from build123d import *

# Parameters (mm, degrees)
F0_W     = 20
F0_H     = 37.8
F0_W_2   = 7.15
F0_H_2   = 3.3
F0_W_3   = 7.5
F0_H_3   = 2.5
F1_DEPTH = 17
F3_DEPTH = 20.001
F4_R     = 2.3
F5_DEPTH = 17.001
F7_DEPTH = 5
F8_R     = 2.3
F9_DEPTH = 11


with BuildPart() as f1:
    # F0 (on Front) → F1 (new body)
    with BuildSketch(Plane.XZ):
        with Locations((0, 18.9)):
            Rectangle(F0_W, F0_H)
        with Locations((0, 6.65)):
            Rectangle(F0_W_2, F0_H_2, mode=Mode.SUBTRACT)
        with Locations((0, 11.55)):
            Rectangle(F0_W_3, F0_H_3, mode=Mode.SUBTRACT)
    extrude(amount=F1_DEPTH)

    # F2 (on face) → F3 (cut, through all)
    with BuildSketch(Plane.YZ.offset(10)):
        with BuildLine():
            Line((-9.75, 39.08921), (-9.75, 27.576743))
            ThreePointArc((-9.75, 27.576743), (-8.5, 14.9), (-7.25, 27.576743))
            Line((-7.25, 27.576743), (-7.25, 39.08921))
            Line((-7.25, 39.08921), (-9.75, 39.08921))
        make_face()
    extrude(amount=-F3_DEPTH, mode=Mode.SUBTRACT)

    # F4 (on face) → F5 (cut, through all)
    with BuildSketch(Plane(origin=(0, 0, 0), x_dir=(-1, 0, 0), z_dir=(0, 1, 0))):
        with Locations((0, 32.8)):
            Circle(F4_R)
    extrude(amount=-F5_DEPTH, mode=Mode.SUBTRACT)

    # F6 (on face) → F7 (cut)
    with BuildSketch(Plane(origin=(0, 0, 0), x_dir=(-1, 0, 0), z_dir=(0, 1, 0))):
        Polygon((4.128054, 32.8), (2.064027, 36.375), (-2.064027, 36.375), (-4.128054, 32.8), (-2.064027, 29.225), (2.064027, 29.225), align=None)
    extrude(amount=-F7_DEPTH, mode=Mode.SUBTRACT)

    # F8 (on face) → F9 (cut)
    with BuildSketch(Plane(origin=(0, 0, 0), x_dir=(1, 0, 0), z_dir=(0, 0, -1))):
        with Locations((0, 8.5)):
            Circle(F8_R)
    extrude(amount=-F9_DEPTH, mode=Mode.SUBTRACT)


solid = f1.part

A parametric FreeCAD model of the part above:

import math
import FreeCAD as App
import Part
import Sketcher

V = App.Vector
Q = App.Units.Quantity

doc = App.newDocument("Part")
body = doc.addObject("PartDesign::Body", "Body")

# Sketch on XZ plane
sketch1 = body.newObject("Sketcher::SketchObject", "Sketch")
sketch1.AttachmentSupport = (doc.getObject("XZ_Plane"), [""])
sketch1.MapMode = "FlatFace"
sketch1.addGeometry([
    Part.LineSegment(V(-10, 37.8, 0), V(-10, 0, 0)),  # 0
    Part.LineSegment(V(-10, 0, 0), V(10, 0, 0)),  # 1
    Part.LineSegment(V(10, 0, 0), V(10, 37.8, 0)),  # 2
    Part.LineSegment(V(10, 37.8, 0), V(-10, 37.8, 0)),  # 3
    Part.LineSegment(V(3.6, 5, 0), V(-3.6, 5, 0)),  # 4
    Part.LineSegment(V(-3.6, 5, 0), V(-3.6, 8.3, 0)),  # 5
    Part.LineSegment(V(-3.6, 8.3, 0), V(3.6, 8.3, 0)),  # 6
    Part.LineSegment(V(3.6, 8.3, 0), V(3.6, 5, 0)),  # 7
    Part.LineSegment(V(3.8, 10.3, 0), V(-3.8, 10.3, 0)),  # 8
    Part.LineSegment(V(-3.8, 10.3, 0), V(-3.8, 12.8, 0)),  # 9
    Part.LineSegment(V(-3.8, 12.8, 0), V(3.8, 12.8, 0)),  # 10
    Part.LineSegment(V(3.8, 12.8, 0), V(3.8, 10.3, 0)),  # 11
], False)
sketch1.addConstraint([
    Sketcher.Constraint("Coincident", 0, 2, 1, 1),
    Sketcher.Constraint("Coincident", 1, 2, 2, 1),
    Sketcher.Constraint("Coincident", 2, 2, 3, 1),
    Sketcher.Constraint("Coincident", 3, 2, 0, 1),
    Sketcher.Constraint("Coincident", 4, 2, 5, 1),
    Sketcher.Constraint("Coincident", 5, 2, 6, 1),
    Sketcher.Constraint("Coincident", 6, 2, 7, 1),
    Sketcher.Constraint("Coincident", 7, 2, 4, 1),
    Sketcher.Constraint("Coincident", 8, 2, 9, 1),
    Sketcher.Constraint("Coincident", 9, 2, 10, 1),
    Sketcher.Constraint("Coincident", 10, 2, 11, 1),
    Sketcher.Constraint("Coincident", 11, 2, 8, 1),
    Sketcher.Constraint("Vertical", 0),
    Sketcher.Constraint("Horizontal", 1),
    Sketcher.Constraint("Vertical", 2),
    Sketcher.Constraint("Horizontal", 3),
    Sketcher.Constraint("Horizontal", 4),
    Sketcher.Constraint("Vertical", 5),
    Sketcher.Constraint("Horizontal", 6),
    Sketcher.Constraint("Vertical", 7),
    Sketcher.Constraint("Horizontal", 8),
    Sketcher.Constraint("Vertical", 9),
    Sketcher.Constraint("Horizontal", 10),
    Sketcher.Constraint("Vertical", 11),
    Sketcher.Constraint("Symmetric", 0, 2, 1, 2, -1, 1),
    Sketcher.Constraint("DistanceX", 1, 1, 1, 2, 20.0),
    Sketcher.Constraint("DistanceX", 8, 2, 8, 1, 7.5),
    Sketcher.Constraint("DistanceY", 0, 2, 0, 1, 37.8),
    Sketcher.Constraint("DistanceY", 5, 1, 5, 2, 3.3),
    Sketcher.Constraint("DistanceY", 9, 1, 9, 2, 2.5),
    Sketcher.Constraint("DistanceY", -1, 1, 4, 2, 5.0),
    Sketcher.Constraint("DistanceY", 5, 2, 8, 2, 2.0),
    Sketcher.Constraint("DistanceX", 4, 2, 4, 1, 7.15),
    Sketcher.Constraint("DistanceX", 8, 2, -1, 1, 3.75),
    Sketcher.Constraint("DistanceX", 4, 2, -1, 1, 3.575),
])
pad1 = body.newObject("PartDesign::Pad", "Pad")
pad1.Profile = sketch1
pad1.Length = 17

# Sketch on YZ plane
sketch2 = body.newObject("Sketcher::SketchObject", "Sketch001")
sketch2.AttachmentSupport = (doc.getObject("YZ_Plane"), [""])
sketch2.MapMode = "FlatFace"
sketch2.AttachmentOffset = App.Placement(V(0, 0, 10), App.Rotation())
sketch2.addGeometry([
    Part.LineSegment(V(-9.8, 39.1, 0), V(-9.8, 27.6, 0)),
    Part.ArcOfCircle(Part.Circle(V(-8.5, 21.3, 0), V(0, 0, 1), 6.4), math.radians(101), math.radians(439)),
    Part.LineSegment(V(-7.2, 27.6, 0), V(-7.2, 39.1, 0)),
    Part.LineSegment(V(-7.2, 39.1, 0), V(-9.8, 39.1, 0)),
], False)
sketch2.addConstraint([
    Sketcher.Constraint("Coincident", 0, 2, 1, 1),
    Sketcher.Constraint("Coincident", 1, 2, 2, 1),
    Sketcher.Constraint("Coincident", 2, 2, 3, 1),
    Sketcher.Constraint("Coincident", 3, 2, 0, 1),
    Sketcher.Constraint("Vertical", 0),
    Sketcher.Constraint("Vertical", 2),
    Sketcher.Constraint("Horizontal", 3),
    Sketcher.Constraint("Horizontal", 0, 2, 1, 2),
    Sketcher.Constraint("Radius", 1, 6.4),
    Sketcher.Constraint("DistanceX", 3, 2, 3, 1, 2.5),
    Sketcher.Constraint("DistanceX", 1, 3, -1, 1, 8.5),
    Sketcher.Constraint("DistanceY", -1, 1, 1, 3, 21.3),
    Sketcher.Constraint("DistanceY", 0, 2, 0, 1, 11.512467),
])
pocket1 = body.newObject("PartDesign::Pocket", "Pocket")
pocket1.Profile = sketch2
pocket1.Type = "ThroughAll"

# Sketch on XZ plane
sketch3 = body.newObject("Sketcher::SketchObject", "Sketch002")
sketch3.AttachmentSupport = (doc.getObject("XZ_Plane"), [""])
sketch3.MapMode = "FlatFace"
sketch3.addGeometry(Part.Circle(V(0, 32.8, 0), V(0, 0, 1), 2.3), False)
sketch3.addConstraint([
    Sketcher.Constraint("PointOnObject", 0, 3, -2),
    Sketcher.Constraint("Diameter", 0, 4.6),
    Sketcher.Constraint("DistanceY", -1, 1, 0, 3, 32.8),
])
pocket2 = body.newObject("PartDesign::Pocket", "Pocket001")
pocket2.Profile = sketch3
pocket2.Type = "ThroughAll"
pocket2.Reversed = True

# Sketch on XZ plane
sketch4 = body.newObject("Sketcher::SketchObject", "Sketch003")
sketch4.AttachmentSupport = (doc.getObject("XZ_Plane"), [""])
sketch4.MapMode = "FlatFace"
sketch4.addGeometry([
    Part.LineSegment(V(-4.1, 32.8, 0), V(-2.1, 36.4, 0)),  # 0
    Part.LineSegment(V(-2.1, 36.4, 0), V(2.1, 36.4, 0)),  # 1
    Part.LineSegment(V(2.1, 36.4, 0), V(4.1, 32.8, 0)),  # 2
    Part.LineSegment(V(4.1, 32.8, 0), V(2.1, 29.2, 0)),  # 3
    Part.LineSegment(V(2.1, 29.2, 0), V(-2.1, 29.2, 0)),  # 4
    Part.LineSegment(V(-2.1, 29.2, 0), V(-4.1, 32.8, 0)),  # 5
], False)
sketch4.addConstraint([
    Sketcher.Constraint("Coincident", 0, 2, 1, 1),
    Sketcher.Constraint("Coincident", 1, 2, 2, 1),
    Sketcher.Constraint("Coincident", 2, 2, 3, 1),
    Sketcher.Constraint("Coincident", 3, 2, 4, 1),
    Sketcher.Constraint("Coincident", 4, 2, 5, 1),
    Sketcher.Constraint("Coincident", 5, 2, 0, 1),
    Sketcher.Constraint("Horizontal", 1),
    Sketcher.Constraint("Horizontal", 4),
    Sketcher.Constraint("Symmetric", 2, 2, 5, 2, -2),
    Sketcher.Constraint("Parallel", 0, 3),
    Sketcher.Constraint("Parallel", 2, 5),
    Sketcher.Constraint("Vertical", 1, 2, 3, 2),
    Sketcher.Constraint("Vertical", 0, 2, 4, 2),
    Sketcher.Constraint("Angle", 0, Q("60.000003 deg")),
    Sketcher.Constraint("DistanceY", -1, 1, 2, 2, 32.8),
    Sketcher.Constraint("DistanceY", 3, 2, 1, 2, 7.15),
    Sketcher.Constraint("DistanceX", 1, 1, 1, 2, 4.128054),
])
pocket3 = body.newObject("PartDesign::Pocket", "Pocket002")
pocket3.Profile = sketch4
pocket3.Length = 5
pocket3.Reversed = True

# Sketch on XY plane
sketch5 = body.newObject("Sketcher::SketchObject", "Sketch004")
sketch5.AttachmentSupport = (doc.getObject("XY_Plane"), [""])
sketch5.MapMode = "FlatFace"
sketch5.addGeometry(Part.Circle(V(0, -8.5, 0), V(0, 0, 1), 2.3), False)
sketch5.addConstraint([
    Sketcher.Constraint("PointOnObject", 0, 3, -2),
    Sketcher.Constraint("Diameter", 0, 4.6),
    Sketcher.Constraint("DistanceY", 0, 3, -1, 1, 8.5),
])
pocket4 = body.newObject("PartDesign::Pocket", "Pocket003")
pocket4.Profile = sketch5
pocket4.Length = 11
pocket4.Reversed = True

doc.recompute()
